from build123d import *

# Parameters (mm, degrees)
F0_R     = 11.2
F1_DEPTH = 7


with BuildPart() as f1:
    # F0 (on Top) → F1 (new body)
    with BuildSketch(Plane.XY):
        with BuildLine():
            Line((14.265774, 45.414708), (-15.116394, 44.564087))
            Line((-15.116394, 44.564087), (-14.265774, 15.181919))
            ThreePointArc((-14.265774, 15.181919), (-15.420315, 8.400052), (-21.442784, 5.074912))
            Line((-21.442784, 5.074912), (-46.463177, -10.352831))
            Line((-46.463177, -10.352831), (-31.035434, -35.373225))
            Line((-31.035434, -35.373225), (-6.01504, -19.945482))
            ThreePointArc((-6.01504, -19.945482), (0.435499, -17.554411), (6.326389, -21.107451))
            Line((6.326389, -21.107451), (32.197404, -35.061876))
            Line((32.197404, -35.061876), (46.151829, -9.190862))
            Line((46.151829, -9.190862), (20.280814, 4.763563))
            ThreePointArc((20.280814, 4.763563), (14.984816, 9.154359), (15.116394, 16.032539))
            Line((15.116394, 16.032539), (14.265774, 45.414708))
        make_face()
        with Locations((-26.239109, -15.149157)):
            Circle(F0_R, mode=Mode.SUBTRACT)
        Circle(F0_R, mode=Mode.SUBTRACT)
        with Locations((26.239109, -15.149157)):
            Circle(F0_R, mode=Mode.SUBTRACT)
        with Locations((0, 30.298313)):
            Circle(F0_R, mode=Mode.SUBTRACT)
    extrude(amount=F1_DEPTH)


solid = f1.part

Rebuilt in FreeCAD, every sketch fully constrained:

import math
import FreeCAD as App
import Part
import Sketcher
Q = App.Units.Quantity

doc = App.newDocument("Part")
body = doc.addObject("PartDesign::Body", "Body")

# Sketch on XY plane
sketch1 = body.newObject("Sketcher::SketchObject", "Sketch")
sketch1.AttachmentSupport = (doc.getObject("XY_Plane"), [""])
sketch1.MapMode = "FlatFace"
sketch1.addGeometry(Part.LineSegment(App.Vector(14, 45, 0), App.Vector(-15, 45, 0)), False)
sketch1.addGeometry(Part.LineSegment(App.Vector(-15, 45, 0), App.Vector(-14, 15, 0)), False)
sketch1.addGeometry(Part.ArcOfCircle(Part.Circle(App.Vector(-22, 13, 0), App.Vector(0, 0, 1), 8), math.radians(-87), math.radians(16)), False)
sketch1.addGeometry(Part.LineSegment(App.Vector(-21, 5, 0), App.Vector(-46, -10, 0)), False)
sketch1.addGeometry(Part.LineSegment(App.Vector(-46, -10, 0), App.Vector(-31, -35, 0)), False)
sketch1.addGeometry(Part.LineSegment(App.Vector(-31, -35, 0), App.Vector(-6, -20, 0)), False)
sketch1.addGeometry(Part.ArcOfCircle(Part.Circle(App.Vector(0, -25, 0), App.Vector(0, 0, 1), 8), math.radians(33), math.radians(136)), False)
sketch1.addGeometry(Part.LineSegment(App.Vector(6, -21, 0), App.Vector(32, -35, 0)), False)
sketch1.addGeometry(Part.LineSegment(App.Vector(32, -35, 0), App.Vector(46, -9, 0)), False)
sketch1.addGeometry(Part.LineSegment(App.Vector(46, -9, 0), App.Vector(20, 5, 0)), False)
sketch1.addGeometry(Part.ArcOfCircle(Part.Circle(App.Vector(22, 12, 0), App.Vector(0, 0, 1), 8), math.radians(153), math.radians(256)), False)
sketch1.addGeometry(Part.LineSegment(App.Vector(15, 16, 0), App.Vector(14, 45, 0)), False)
sketch1.addGeometry(Part.Circle(App.Vector(-26, -15, 0), App.Vector(0, 0, 1), 11), False)
sketch1.addGeometry(Part.Circle(App.Vector(26, -15, 0), App.Vector(0, 0, 1), 11), False)
sketch1.addGeometry(Part.Circle(App.Vector(0, 0, 0), App.Vector(0, 0, 1), 11), False)
sketch1.addGeometry(Part.Circle(App.Vector(0, 30, 0), App.Vector(0, 0, 1), 11), False)
sketch1.addConstraint(Sketcher.Constraint("Coincident", 0, 2, 1, 1))
sketch1.addConstraint(Sketcher.Constraint("Coincident", 1, 2, 2, 2))
sketch1.addConstraint(Sketcher.Constraint("Coincident", 2, 1, 3, 1))
sketch1.addConstraint(Sketcher.Constraint("Coincident", 3, 2, 4, 1))
sketch1.addConstraint(Sketcher.Constraint("Coincident", 4, 2, 5, 1))
sketch1.addConstraint(Sketcher.Constraint("Coincident", 5, 2, 6, 2))
sketch1.addConstraint(Sketcher.Constraint("Coincident", 6, 1, 7, 1))
sketch1.addConstraint(Sketcher.Constraint("Coincident", 7, 2, 8, 1))
sketch1.addConstraint(Sketcher.Constraint("Coincident", 8, 2, 9, 1))
sketch1.addConstraint(Sketcher.Constraint("Coincident", 9, 2, 10, 2))
sketch1.addConstraint(Sketcher.Constraint("Coincident", 10, 1, 11, 1))
sketch1.addConstraint(Sketcher.Constraint("Coincident", 11, 2, 0, 1))
sketch1.addConstraint(Sketcher.Constraint("Coincident", 14, 3, -1, 1))
sketch1.addConstraint(Sketcher.Constraint("Equal", 2, 6))
sketch1.addConstraint(Sketcher.Constraint("Equal", 6, 10))
sketch1.addConstraint(Sketcher.Constraint("Equal", 12, 13))
sketch1.addConstraint(Sketcher.Constraint("Equal", 13, 14))
sketch1.addConstraint(Sketcher.Constraint("Equal", 14, 15))
sketch1.addConstraint(Sketcher.Constraint("Symmetric", 12, 3, 13, 3, -2))
sketch1.addConstraint(Sketcher.Constraint("PointOnObject", 15, 3, -2))
sketch1.addConstraint(Sketcher.Constraint("Perpendicular", 0, 1))
sketch1.addConstraint(Sketcher.Constraint("Perpendicular", 3, 4))
sketch1.addConstraint(Sketcher.Constraint("Perpendicular", 4, 5))
sketch1.addConstraint(Sketcher.Constraint("Perpendicular", 7, 8))
sketch1.addConstraint(Sketcher.Constraint("Perpendicular", 8, 9))
sketch1.addConstraint(Sketcher.Constraint("Parallel", 1, 11))
sketch1.addConstraint(Sketcher.Constraint("Equal", 0, 1))
sketch1.addConstraint(Sketcher.Constraint("Equal", 1, 3))
sketch1.addConstraint(Sketcher.Constraint("Equal", 3, 4))
sketch1.addConstraint(Sketcher.Constraint("Equal", 4, 5))
sketch1.addConstraint(Sketcher.Constraint("Equal", 5, 7))
sketch1.addConstraint(Sketcher.Constraint("Equal", 7, 8))
sketch1.addConstraint(Sketcher.Constraint("Equal", 8, 9))
sketch1.addConstraint(Sketcher.Constraint("Equal", 9, 11))
sketch1.addConstraint(Sketcher.Constraint("Diameter", 12, Q("22.4 mm")))
sketch1.addConstraint(Sketcher.Constraint("DistanceX", -1, 1, 10, 3, Q("22.190998 mm")))
sketch1.addConstraint(Sketcher.Constraint("Radius", 2, Q("7.926886 mm")))
sketch1.addConstraint(Sketcher.Constraint("DistanceY", 2, 1, 15, 3, Q("25.223401 mm")))
sketch1.addConstraint(Sketcher.Constraint("DistanceX", 12, 3, 6, 1, Q("32.565498 mm")))
sketch1.addConstraint(Sketcher.Constraint("Distance", 0, Q("29.394478 mm")))
sketch1.addConstraint(Sketcher.Constraint("DistanceX", 2, 3, -1, 1, Q("21.883451 mm")))
sketch1.addConstraint(Sketcher.Constraint("DistanceY", -1, 1, 2, 3, Q("12.98954 mm")))
sketch1.addConstraint(Sketcher.Constraint("DistanceX", 12, 3, -1, 1, Q("26.239109 mm")))
sketch1.addConstraint(Sketcher.Constraint("DistanceY", -1, 1, 1, 2, Q("15.181919 mm")))
sketch1.addConstraint(Sketcher.Constraint("DistanceY", 3, 2, -1, 1, Q("10.352831 mm")))
sketch1.addConstraint(Sketcher.Constraint("DistanceX", 5, 2, -1, 1, Q("6.01504 mm")))
sketch1.addConstraint(Sketcher.Constraint("DistanceY", 6, 1, -1, 1, Q("21.107451 mm")))
sketch1.addConstraint(Sketcher.Constraint("DistanceX", -1, 1, 8, 2, Q("46.151829 mm")))
sketch1.addConstraint(Sketcher.Constraint("DistanceY", 6, 3, 12, 3, Q("10.297238 mm")))
pad1 = body.newObject("PartDesign::Pad", "Pad")
pad1.Profile = sketch1
pad1.Length = 7

doc.recompute()
